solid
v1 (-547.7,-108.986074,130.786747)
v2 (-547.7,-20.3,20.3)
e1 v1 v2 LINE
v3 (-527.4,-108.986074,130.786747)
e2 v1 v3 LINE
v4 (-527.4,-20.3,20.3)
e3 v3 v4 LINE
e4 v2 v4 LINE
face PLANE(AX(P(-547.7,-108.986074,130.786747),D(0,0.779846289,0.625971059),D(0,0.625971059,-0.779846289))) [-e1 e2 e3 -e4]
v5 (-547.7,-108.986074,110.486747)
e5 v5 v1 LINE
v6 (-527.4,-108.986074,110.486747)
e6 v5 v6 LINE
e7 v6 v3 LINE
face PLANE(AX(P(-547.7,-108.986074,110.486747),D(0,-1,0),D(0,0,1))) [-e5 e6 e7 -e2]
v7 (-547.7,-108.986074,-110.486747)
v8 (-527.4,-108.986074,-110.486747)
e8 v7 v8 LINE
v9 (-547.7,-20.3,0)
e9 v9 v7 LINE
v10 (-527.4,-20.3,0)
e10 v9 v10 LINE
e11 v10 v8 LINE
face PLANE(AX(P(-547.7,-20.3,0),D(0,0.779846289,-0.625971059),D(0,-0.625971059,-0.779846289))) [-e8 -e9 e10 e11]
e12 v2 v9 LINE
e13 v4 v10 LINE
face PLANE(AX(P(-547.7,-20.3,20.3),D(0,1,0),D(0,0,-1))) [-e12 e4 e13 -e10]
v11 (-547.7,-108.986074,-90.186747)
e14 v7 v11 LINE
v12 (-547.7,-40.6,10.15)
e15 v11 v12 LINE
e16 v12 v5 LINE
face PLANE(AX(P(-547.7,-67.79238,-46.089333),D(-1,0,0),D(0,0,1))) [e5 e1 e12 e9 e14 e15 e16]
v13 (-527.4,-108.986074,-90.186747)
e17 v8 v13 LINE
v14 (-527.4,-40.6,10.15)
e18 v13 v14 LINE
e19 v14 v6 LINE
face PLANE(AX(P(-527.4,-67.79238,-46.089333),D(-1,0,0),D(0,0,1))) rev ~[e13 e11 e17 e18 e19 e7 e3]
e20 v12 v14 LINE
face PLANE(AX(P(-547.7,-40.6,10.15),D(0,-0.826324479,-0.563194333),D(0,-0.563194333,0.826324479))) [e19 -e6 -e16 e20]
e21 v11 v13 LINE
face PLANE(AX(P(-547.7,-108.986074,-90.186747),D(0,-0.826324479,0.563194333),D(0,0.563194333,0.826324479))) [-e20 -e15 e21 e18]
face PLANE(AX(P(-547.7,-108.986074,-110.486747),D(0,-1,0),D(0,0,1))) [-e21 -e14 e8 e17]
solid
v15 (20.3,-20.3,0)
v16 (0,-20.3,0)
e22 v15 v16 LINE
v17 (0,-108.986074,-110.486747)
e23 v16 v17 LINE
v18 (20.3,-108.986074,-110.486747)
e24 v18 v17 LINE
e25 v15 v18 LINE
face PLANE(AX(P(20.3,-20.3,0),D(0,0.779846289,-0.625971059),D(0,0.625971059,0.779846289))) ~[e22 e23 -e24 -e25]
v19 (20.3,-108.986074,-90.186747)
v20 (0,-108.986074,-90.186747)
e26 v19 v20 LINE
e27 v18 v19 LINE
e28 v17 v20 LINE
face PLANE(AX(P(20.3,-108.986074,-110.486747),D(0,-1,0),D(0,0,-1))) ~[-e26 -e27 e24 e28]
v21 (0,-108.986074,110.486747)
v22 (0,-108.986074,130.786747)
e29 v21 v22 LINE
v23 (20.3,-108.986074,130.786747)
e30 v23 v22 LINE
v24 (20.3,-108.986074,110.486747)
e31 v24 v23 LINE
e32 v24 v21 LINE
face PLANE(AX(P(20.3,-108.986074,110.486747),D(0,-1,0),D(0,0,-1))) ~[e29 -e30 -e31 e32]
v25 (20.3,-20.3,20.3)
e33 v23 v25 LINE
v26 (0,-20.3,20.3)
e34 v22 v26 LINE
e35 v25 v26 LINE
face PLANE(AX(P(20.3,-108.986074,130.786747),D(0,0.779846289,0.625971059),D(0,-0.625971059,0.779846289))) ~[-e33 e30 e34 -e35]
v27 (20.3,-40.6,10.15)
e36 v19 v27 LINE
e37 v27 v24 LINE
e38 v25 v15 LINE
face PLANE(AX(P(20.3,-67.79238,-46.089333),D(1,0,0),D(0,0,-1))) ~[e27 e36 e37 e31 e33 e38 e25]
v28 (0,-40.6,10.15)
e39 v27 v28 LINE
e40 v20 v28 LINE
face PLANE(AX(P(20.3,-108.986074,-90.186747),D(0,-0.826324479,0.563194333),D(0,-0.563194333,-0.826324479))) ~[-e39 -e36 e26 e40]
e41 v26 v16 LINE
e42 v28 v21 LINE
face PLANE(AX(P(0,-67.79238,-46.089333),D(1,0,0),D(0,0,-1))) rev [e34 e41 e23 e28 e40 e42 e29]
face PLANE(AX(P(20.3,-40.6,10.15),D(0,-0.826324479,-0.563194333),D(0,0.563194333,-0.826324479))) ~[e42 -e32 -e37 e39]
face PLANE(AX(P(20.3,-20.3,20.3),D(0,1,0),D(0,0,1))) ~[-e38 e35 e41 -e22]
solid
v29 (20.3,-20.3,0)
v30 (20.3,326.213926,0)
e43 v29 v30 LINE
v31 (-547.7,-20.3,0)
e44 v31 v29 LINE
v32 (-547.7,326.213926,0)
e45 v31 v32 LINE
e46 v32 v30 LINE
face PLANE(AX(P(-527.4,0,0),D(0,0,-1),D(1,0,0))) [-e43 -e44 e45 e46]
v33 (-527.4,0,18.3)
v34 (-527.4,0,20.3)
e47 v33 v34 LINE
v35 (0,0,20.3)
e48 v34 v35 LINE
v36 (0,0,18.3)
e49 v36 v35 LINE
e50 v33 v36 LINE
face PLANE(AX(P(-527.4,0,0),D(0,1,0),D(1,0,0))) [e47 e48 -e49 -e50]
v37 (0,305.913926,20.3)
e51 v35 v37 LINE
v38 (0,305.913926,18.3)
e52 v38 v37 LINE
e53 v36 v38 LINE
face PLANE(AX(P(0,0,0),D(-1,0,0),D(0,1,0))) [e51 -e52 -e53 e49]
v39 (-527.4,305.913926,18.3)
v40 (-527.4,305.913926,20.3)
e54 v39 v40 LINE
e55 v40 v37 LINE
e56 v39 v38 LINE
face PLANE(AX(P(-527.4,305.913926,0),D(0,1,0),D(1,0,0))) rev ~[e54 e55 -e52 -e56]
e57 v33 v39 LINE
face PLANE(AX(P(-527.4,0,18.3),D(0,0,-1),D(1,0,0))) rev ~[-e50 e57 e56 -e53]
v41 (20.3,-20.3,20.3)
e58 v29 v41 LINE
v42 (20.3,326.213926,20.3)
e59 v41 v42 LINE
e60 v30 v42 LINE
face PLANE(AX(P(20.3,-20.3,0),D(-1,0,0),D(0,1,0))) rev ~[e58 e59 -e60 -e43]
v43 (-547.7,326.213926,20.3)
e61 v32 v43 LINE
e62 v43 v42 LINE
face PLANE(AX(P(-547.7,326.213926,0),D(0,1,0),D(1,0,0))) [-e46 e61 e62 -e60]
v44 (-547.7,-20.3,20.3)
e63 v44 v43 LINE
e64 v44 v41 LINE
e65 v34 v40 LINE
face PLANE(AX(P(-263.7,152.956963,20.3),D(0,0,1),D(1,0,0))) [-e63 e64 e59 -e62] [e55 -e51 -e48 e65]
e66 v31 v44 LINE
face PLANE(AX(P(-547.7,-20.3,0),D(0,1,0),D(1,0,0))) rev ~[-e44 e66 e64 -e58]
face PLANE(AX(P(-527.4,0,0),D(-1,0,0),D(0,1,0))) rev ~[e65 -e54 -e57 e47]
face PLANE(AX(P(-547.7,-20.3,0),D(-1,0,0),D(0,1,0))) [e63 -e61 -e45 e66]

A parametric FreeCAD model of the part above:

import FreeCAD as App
import Part
import Sketcher

V = App.Vector
Q = App.Units.Quantity


def add_polygon(sketch, points):
    """Adds a closed chain of lines whose ends are joined by coincident constraints."""
    first, n = sketch.GeometryCount, len(points)
    for a, b in zip(points, points[1:] + points[:1]):
        sketch.addGeometry(Part.LineSegment(App.Vector(*a, 0), App.Vector(*b, 0)), False)
    for i in range(n):
        sketch.addConstraint(Sketcher.Constraint("Coincident", first + i, 2, first + (i + 1) % n, 1))

doc = App.newDocument("Part")
body = doc.addObject("PartDesign::Body", "Body")

sketch1 = body.newObject("Sketcher::SketchObject", "Sketch")
sketch1.AttachmentSupport = (doc.getObject("XY_Plane"), [""])
sketch1.MapMode = "FlatFace"
add_polygon(sketch1, [(-548, 326), (-548, -20), (20, -20), (20, 326)])
add_polygon(sketch1, [(0, 0), (-527, 0), (-527, 306), (0, 306)])
sketch1.addConstraint(Sketcher.Constraint("Vertical", 0))
sketch1.addConstraint(Sketcher.Constraint("Horizontal", 1))
sketch1.addConstraint(Sketcher.Constraint("Vertical", 2))
sketch1.addConstraint(Sketcher.Constraint("Horizontal", 3))
sketch1.addConstraint(Sketcher.Constraint("Horizontal", 4))
sketch1.addConstraint(Sketcher.Constraint("Vertical", 5))
sketch1.addConstraint(Sketcher.Constraint("Horizontal", 6))
sketch1.addConstraint(Sketcher.Constraint("Vertical", 7))
sketch1.addConstraint(Sketcher.Constraint("Coincident", 7, 2, -1, 1))
sketch1.addConstraint(Sketcher.Constraint("DistanceX", 1, 1, 1, 2, Q("568 mm")))
sketch1.addConstraint(Sketcher.Constraint("DistanceX", 4, 2, 4, 1, Q("527.4 mm")))
sketch1.addConstraint(Sketcher.Constraint("DistanceX", 0, 2, -1, 1, Q("547.7 mm")))
sketch1.addConstraint(Sketcher.Constraint("DistanceY", 0, 2, -1, 1, Q("20.3 mm")))
sketch1.addConstraint(Sketcher.Constraint("DistanceY", 5, 2, 3, 2, Q("20.3 mm")))
sketch1.addConstraint(Sketcher.Constraint("DistanceY", 0, 2, 0, 1, Q("346.513926 mm")))
pad1 = body.newObject("PartDesign::Pad", "Pad")
pad1.Profile = sketch1
pad1.Length = 20.3

sketch2 = body.newObject("Sketcher::SketchObject", "Sketch001")
sketch2.AttachmentSupport = (doc.getObject("XZ_Plane"), [""])
sketch2.MapMode = "FlatFace"
add_polygon(sketch2, [(-527, 0), (-527, 18), (0, 18), (0, 0)])
sketch2.addConstraint(Sketcher.Constraint("Vertical", 0))
sketch2.addConstraint(Sketcher.Constraint("Horizontal", 1))
sketch2.addConstraint(Sketcher.Constraint("Vertical", 2))
sketch2.addConstraint(Sketcher.Constraint("Horizontal", 3))
sketch2.addConstraint(Sketcher.Constraint("Coincident", 2, 2, -1, 1))
sketch2.addConstraint(Sketcher.Constraint("DistanceX", 1, 1, 1, 2, Q("527.4 mm")))
sketch2.addConstraint(Sketcher.Constraint("DistanceY", 0, 1, 0, 2, Q("18.3 mm")))
pad2 = body.newObject("PartDesign::Pad", "Pad001")
pad2.Profile = sketch2
pad2.Type = "UpToFirst"
pad2.Reversed = True
body2 = doc.addObject("PartDesign::Body", "Body001")

sketch3 = body2.newObject("Sketcher::SketchObject", "Sketch002")
sketch3.AttachmentSupport = (doc.getObject("YZ_Plane001"), [""])
sketch3.MapMode = "FlatFace"
sketch3.AttachmentOffset = App.Placement(V(0, 0, -547.7), App.Rotation())
add_polygon(sketch3, [(-20, 0), (-109, -110), (-109, -90), (-41, 10), (-109, 110), (-109, 131), (-20, 20)])
sketch3.addConstraint(Sketcher.Constraint("Vertical", 1))
sketch3.addConstraint(Sketcher.Constraint("Vertical", 4))
sketch3.addConstraint(Sketcher.Constraint("Vertical", 6))
sketch3.addConstraint(Sketcher.Constraint("Symmetric", 0, 2, 3, 2, -1))
sketch3.addConstraint(Sketcher.Constraint("PointOnObject", 6, 2, -1))
sketch3.addConstraint(Sketcher.Constraint("Equal", 1, 4))
sketch3.addConstraint(Sketcher.Constraint("Equal", 4, 6))
sketch3.addConstraint(Sketcher.Constraint("Equal", 2, 3))
sketch3.addConstraint(Sketcher.Constraint("DistanceY", 1, 1, 1, 2, Q("20.3 mm")))
sketch3.addConstraint(Sketcher.Constraint("DistanceX", 2, 2, -1, 1, Q("40.6 mm")))
sketch3.addConstraint(Sketcher.Constraint("DistanceX", 5, 2, -1, 1, Q("20.3 mm")))
sketch3.addConstraint(Sketcher.Constraint("Distance", 2, Q("121.425359 mm")))
sketch3.addConstraint(Sketcher.Constraint("Distance", 0, Q("141.677595 mm")))
pad3 = body2.newObject("PartDesign::Pad", "Pad002")
pad3.Profile = sketch3
pad3.Length = 20.3
body3 = doc.addObject("PartDesign::Body", "Body002")
doc.recompute()

mirroring = doc.addObject("Part::Mirroring", "Mirroring")
mirroring.Source = body2
mirroring.Base = V(-263.7, 0, 0)
mirroring.Normal = V(-1, 0, 0)
body3.BaseFeature = mirroring
doc.recompute()
mirroring.Visibility = False

doc.recompute()
